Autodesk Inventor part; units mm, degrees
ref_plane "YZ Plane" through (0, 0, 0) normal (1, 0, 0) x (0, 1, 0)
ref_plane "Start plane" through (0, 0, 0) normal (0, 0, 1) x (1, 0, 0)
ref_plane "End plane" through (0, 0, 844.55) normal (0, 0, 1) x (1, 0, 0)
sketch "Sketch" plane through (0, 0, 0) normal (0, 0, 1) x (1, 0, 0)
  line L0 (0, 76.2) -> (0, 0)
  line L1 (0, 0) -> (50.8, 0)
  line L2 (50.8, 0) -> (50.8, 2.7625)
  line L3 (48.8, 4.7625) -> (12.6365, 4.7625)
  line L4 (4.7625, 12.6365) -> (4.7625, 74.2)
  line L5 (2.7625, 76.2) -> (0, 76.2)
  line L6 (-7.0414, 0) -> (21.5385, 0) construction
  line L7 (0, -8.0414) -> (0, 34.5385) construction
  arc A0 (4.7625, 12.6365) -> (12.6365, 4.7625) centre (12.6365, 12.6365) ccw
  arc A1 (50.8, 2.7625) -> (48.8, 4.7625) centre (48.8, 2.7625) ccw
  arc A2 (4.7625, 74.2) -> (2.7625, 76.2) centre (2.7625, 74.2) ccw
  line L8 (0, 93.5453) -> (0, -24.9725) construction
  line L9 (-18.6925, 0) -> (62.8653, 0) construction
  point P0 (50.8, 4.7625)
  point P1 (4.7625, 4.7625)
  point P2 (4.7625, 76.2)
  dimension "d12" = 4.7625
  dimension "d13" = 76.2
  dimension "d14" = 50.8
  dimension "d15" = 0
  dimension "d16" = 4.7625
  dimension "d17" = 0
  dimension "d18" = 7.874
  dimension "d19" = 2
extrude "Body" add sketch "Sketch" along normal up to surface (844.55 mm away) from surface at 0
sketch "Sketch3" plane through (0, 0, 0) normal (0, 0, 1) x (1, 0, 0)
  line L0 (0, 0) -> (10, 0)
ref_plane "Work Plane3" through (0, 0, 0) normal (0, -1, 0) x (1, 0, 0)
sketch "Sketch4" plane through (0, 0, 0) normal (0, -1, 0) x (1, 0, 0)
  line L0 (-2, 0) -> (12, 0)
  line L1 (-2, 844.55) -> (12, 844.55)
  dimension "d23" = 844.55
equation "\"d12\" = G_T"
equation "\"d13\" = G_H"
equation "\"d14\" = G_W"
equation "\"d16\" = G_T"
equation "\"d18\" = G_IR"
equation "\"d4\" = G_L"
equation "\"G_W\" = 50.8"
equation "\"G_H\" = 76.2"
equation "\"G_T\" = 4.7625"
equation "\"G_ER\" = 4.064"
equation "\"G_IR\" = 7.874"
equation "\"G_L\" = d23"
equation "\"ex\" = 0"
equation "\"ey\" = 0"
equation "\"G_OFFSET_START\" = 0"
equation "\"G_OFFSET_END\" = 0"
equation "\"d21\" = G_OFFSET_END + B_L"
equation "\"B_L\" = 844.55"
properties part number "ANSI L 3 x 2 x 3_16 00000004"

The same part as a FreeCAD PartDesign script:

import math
import FreeCAD as App
import Part
import Sketcher
from FreeCAD import Vector
Q = App.Units.Quantity

doc = App.newDocument("Part")
body = doc.addObject("PartDesign::Body", "Body")

sketch1 = doc.addObject("Sketcher::SketchObject", "Sketch")
body.addObject(sketch1)
sketch1.AttachmentSupport = (doc.XY_Plane, [""])
sketch1.MapMode = "FlatFace"
sketch1.addGeometry(Part.LineSegment(Vector(2.8, 76.2, 0), Vector(0, 76.2, 0)), False)
sketch1.addGeometry(Part.LineSegment(Vector(0, 76.2, 0), Vector(0, 0, 0)), False)
sketch1.addGeometry(Part.LineSegment(Vector(0, 0, 0), Vector(50.8, 0, 0)), False)
sketch1.addGeometry(Part.LineSegment(Vector(50.8, 0, 0), Vector(50.8, 2.8, 0)), False)
sketch1.addGeometry(Part.ArcOfCircle(Part.Circle(Vector(48.8, 2.8, 0), Vector(0, 0, 1), 2), math.radians(0), math.radians(90)), False)
sketch1.addGeometry(Part.LineSegment(Vector(48.8, 4.8, 0), Vector(12.6, 4.8, 0)), False)
sketch1.addGeometry(Part.ArcOfCircle(Part.Circle(Vector(12.6, 12.6, 0), Vector(0, 0, 1), 7.9), math.radians(180), math.radians(270)), False)
sketch1.addGeometry(Part.LineSegment(Vector(4.8, 12.6, 0), Vector(4.8, 74.2, 0)), False)
sketch1.addGeometry(Part.ArcOfCircle(Part.Circle(Vector(2.8, 74.2, 0), Vector(0, 0, 1), 2), math.radians(0), math.radians(90)), False)
sketch1.addConstraint(Sketcher.Constraint("Coincident", 0, 2, 1, 1))
sketch1.addConstraint(Sketcher.Constraint("Coincident", 1, 2, 2, 1))
sketch1.addConstraint(Sketcher.Constraint("Coincident", 2, 2, 3, 1))
sketch1.addConstraint(Sketcher.Constraint("Tangent", 3, 2, 4, 1))
sketch1.addConstraint(Sketcher.Constraint("Tangent", 4, 2, 5, 1))
sketch1.addConstraint(Sketcher.Constraint("Tangent", 5, 2, 6, 2))
sketch1.addConstraint(Sketcher.Constraint("Tangent", 6, 1, 7, 1))
sketch1.addConstraint(Sketcher.Constraint("Tangent", 7, 2, 8, 1))
sketch1.addConstraint(Sketcher.Constraint("Tangent", 8, 2, 0, 1))
sketch1.addConstraint(Sketcher.Constraint("Horizontal", 0))
sketch1.addConstraint(Sketcher.Constraint("Vertical", 1))
sketch1.addConstraint(Sketcher.Constraint("Horizontal", 2))
sketch1.addConstraint(Sketcher.Constraint("Vertical", 3))
sketch1.addConstraint(Sketcher.Constraint("Horizontal", 5))
sketch1.addConstraint(Sketcher.Constraint("Vertical", 7))
sketch1.addConstraint(Sketcher.Constraint("Coincident", 1, 2, -1, 1))
sketch1.addConstraint(Sketcher.Constraint("Equal", 4, 8))
sketch1.addConstraint(Sketcher.Constraint("Equal", 0, 3))
sketch1.addConstraint(Sketcher.Constraint("DistanceX", 2, 1, 2, 2, Q("2 in")))
sketch1.addConstraint(Sketcher.Constraint("DistanceY", 1, 2, 1, 1, Q("3 in")))
sketch1.addConstraint(Sketcher.Constraint("Radius", 6, Q("0.31 in")))
sketch1.addConstraint(Sketcher.Constraint("Radius", 4, Q("2 mm")))
sketch1.addConstraint(Sketcher.Constraint("DistanceY", -1, 1, 4, 2, Q("0.1875 in")))
pad1 = doc.addObject("PartDesign::Pad", "Pad")
body.addObject(pad1)
pad1.Profile = sketch1
pad1.Length = Q("33.25 in")

doc.recompute()
